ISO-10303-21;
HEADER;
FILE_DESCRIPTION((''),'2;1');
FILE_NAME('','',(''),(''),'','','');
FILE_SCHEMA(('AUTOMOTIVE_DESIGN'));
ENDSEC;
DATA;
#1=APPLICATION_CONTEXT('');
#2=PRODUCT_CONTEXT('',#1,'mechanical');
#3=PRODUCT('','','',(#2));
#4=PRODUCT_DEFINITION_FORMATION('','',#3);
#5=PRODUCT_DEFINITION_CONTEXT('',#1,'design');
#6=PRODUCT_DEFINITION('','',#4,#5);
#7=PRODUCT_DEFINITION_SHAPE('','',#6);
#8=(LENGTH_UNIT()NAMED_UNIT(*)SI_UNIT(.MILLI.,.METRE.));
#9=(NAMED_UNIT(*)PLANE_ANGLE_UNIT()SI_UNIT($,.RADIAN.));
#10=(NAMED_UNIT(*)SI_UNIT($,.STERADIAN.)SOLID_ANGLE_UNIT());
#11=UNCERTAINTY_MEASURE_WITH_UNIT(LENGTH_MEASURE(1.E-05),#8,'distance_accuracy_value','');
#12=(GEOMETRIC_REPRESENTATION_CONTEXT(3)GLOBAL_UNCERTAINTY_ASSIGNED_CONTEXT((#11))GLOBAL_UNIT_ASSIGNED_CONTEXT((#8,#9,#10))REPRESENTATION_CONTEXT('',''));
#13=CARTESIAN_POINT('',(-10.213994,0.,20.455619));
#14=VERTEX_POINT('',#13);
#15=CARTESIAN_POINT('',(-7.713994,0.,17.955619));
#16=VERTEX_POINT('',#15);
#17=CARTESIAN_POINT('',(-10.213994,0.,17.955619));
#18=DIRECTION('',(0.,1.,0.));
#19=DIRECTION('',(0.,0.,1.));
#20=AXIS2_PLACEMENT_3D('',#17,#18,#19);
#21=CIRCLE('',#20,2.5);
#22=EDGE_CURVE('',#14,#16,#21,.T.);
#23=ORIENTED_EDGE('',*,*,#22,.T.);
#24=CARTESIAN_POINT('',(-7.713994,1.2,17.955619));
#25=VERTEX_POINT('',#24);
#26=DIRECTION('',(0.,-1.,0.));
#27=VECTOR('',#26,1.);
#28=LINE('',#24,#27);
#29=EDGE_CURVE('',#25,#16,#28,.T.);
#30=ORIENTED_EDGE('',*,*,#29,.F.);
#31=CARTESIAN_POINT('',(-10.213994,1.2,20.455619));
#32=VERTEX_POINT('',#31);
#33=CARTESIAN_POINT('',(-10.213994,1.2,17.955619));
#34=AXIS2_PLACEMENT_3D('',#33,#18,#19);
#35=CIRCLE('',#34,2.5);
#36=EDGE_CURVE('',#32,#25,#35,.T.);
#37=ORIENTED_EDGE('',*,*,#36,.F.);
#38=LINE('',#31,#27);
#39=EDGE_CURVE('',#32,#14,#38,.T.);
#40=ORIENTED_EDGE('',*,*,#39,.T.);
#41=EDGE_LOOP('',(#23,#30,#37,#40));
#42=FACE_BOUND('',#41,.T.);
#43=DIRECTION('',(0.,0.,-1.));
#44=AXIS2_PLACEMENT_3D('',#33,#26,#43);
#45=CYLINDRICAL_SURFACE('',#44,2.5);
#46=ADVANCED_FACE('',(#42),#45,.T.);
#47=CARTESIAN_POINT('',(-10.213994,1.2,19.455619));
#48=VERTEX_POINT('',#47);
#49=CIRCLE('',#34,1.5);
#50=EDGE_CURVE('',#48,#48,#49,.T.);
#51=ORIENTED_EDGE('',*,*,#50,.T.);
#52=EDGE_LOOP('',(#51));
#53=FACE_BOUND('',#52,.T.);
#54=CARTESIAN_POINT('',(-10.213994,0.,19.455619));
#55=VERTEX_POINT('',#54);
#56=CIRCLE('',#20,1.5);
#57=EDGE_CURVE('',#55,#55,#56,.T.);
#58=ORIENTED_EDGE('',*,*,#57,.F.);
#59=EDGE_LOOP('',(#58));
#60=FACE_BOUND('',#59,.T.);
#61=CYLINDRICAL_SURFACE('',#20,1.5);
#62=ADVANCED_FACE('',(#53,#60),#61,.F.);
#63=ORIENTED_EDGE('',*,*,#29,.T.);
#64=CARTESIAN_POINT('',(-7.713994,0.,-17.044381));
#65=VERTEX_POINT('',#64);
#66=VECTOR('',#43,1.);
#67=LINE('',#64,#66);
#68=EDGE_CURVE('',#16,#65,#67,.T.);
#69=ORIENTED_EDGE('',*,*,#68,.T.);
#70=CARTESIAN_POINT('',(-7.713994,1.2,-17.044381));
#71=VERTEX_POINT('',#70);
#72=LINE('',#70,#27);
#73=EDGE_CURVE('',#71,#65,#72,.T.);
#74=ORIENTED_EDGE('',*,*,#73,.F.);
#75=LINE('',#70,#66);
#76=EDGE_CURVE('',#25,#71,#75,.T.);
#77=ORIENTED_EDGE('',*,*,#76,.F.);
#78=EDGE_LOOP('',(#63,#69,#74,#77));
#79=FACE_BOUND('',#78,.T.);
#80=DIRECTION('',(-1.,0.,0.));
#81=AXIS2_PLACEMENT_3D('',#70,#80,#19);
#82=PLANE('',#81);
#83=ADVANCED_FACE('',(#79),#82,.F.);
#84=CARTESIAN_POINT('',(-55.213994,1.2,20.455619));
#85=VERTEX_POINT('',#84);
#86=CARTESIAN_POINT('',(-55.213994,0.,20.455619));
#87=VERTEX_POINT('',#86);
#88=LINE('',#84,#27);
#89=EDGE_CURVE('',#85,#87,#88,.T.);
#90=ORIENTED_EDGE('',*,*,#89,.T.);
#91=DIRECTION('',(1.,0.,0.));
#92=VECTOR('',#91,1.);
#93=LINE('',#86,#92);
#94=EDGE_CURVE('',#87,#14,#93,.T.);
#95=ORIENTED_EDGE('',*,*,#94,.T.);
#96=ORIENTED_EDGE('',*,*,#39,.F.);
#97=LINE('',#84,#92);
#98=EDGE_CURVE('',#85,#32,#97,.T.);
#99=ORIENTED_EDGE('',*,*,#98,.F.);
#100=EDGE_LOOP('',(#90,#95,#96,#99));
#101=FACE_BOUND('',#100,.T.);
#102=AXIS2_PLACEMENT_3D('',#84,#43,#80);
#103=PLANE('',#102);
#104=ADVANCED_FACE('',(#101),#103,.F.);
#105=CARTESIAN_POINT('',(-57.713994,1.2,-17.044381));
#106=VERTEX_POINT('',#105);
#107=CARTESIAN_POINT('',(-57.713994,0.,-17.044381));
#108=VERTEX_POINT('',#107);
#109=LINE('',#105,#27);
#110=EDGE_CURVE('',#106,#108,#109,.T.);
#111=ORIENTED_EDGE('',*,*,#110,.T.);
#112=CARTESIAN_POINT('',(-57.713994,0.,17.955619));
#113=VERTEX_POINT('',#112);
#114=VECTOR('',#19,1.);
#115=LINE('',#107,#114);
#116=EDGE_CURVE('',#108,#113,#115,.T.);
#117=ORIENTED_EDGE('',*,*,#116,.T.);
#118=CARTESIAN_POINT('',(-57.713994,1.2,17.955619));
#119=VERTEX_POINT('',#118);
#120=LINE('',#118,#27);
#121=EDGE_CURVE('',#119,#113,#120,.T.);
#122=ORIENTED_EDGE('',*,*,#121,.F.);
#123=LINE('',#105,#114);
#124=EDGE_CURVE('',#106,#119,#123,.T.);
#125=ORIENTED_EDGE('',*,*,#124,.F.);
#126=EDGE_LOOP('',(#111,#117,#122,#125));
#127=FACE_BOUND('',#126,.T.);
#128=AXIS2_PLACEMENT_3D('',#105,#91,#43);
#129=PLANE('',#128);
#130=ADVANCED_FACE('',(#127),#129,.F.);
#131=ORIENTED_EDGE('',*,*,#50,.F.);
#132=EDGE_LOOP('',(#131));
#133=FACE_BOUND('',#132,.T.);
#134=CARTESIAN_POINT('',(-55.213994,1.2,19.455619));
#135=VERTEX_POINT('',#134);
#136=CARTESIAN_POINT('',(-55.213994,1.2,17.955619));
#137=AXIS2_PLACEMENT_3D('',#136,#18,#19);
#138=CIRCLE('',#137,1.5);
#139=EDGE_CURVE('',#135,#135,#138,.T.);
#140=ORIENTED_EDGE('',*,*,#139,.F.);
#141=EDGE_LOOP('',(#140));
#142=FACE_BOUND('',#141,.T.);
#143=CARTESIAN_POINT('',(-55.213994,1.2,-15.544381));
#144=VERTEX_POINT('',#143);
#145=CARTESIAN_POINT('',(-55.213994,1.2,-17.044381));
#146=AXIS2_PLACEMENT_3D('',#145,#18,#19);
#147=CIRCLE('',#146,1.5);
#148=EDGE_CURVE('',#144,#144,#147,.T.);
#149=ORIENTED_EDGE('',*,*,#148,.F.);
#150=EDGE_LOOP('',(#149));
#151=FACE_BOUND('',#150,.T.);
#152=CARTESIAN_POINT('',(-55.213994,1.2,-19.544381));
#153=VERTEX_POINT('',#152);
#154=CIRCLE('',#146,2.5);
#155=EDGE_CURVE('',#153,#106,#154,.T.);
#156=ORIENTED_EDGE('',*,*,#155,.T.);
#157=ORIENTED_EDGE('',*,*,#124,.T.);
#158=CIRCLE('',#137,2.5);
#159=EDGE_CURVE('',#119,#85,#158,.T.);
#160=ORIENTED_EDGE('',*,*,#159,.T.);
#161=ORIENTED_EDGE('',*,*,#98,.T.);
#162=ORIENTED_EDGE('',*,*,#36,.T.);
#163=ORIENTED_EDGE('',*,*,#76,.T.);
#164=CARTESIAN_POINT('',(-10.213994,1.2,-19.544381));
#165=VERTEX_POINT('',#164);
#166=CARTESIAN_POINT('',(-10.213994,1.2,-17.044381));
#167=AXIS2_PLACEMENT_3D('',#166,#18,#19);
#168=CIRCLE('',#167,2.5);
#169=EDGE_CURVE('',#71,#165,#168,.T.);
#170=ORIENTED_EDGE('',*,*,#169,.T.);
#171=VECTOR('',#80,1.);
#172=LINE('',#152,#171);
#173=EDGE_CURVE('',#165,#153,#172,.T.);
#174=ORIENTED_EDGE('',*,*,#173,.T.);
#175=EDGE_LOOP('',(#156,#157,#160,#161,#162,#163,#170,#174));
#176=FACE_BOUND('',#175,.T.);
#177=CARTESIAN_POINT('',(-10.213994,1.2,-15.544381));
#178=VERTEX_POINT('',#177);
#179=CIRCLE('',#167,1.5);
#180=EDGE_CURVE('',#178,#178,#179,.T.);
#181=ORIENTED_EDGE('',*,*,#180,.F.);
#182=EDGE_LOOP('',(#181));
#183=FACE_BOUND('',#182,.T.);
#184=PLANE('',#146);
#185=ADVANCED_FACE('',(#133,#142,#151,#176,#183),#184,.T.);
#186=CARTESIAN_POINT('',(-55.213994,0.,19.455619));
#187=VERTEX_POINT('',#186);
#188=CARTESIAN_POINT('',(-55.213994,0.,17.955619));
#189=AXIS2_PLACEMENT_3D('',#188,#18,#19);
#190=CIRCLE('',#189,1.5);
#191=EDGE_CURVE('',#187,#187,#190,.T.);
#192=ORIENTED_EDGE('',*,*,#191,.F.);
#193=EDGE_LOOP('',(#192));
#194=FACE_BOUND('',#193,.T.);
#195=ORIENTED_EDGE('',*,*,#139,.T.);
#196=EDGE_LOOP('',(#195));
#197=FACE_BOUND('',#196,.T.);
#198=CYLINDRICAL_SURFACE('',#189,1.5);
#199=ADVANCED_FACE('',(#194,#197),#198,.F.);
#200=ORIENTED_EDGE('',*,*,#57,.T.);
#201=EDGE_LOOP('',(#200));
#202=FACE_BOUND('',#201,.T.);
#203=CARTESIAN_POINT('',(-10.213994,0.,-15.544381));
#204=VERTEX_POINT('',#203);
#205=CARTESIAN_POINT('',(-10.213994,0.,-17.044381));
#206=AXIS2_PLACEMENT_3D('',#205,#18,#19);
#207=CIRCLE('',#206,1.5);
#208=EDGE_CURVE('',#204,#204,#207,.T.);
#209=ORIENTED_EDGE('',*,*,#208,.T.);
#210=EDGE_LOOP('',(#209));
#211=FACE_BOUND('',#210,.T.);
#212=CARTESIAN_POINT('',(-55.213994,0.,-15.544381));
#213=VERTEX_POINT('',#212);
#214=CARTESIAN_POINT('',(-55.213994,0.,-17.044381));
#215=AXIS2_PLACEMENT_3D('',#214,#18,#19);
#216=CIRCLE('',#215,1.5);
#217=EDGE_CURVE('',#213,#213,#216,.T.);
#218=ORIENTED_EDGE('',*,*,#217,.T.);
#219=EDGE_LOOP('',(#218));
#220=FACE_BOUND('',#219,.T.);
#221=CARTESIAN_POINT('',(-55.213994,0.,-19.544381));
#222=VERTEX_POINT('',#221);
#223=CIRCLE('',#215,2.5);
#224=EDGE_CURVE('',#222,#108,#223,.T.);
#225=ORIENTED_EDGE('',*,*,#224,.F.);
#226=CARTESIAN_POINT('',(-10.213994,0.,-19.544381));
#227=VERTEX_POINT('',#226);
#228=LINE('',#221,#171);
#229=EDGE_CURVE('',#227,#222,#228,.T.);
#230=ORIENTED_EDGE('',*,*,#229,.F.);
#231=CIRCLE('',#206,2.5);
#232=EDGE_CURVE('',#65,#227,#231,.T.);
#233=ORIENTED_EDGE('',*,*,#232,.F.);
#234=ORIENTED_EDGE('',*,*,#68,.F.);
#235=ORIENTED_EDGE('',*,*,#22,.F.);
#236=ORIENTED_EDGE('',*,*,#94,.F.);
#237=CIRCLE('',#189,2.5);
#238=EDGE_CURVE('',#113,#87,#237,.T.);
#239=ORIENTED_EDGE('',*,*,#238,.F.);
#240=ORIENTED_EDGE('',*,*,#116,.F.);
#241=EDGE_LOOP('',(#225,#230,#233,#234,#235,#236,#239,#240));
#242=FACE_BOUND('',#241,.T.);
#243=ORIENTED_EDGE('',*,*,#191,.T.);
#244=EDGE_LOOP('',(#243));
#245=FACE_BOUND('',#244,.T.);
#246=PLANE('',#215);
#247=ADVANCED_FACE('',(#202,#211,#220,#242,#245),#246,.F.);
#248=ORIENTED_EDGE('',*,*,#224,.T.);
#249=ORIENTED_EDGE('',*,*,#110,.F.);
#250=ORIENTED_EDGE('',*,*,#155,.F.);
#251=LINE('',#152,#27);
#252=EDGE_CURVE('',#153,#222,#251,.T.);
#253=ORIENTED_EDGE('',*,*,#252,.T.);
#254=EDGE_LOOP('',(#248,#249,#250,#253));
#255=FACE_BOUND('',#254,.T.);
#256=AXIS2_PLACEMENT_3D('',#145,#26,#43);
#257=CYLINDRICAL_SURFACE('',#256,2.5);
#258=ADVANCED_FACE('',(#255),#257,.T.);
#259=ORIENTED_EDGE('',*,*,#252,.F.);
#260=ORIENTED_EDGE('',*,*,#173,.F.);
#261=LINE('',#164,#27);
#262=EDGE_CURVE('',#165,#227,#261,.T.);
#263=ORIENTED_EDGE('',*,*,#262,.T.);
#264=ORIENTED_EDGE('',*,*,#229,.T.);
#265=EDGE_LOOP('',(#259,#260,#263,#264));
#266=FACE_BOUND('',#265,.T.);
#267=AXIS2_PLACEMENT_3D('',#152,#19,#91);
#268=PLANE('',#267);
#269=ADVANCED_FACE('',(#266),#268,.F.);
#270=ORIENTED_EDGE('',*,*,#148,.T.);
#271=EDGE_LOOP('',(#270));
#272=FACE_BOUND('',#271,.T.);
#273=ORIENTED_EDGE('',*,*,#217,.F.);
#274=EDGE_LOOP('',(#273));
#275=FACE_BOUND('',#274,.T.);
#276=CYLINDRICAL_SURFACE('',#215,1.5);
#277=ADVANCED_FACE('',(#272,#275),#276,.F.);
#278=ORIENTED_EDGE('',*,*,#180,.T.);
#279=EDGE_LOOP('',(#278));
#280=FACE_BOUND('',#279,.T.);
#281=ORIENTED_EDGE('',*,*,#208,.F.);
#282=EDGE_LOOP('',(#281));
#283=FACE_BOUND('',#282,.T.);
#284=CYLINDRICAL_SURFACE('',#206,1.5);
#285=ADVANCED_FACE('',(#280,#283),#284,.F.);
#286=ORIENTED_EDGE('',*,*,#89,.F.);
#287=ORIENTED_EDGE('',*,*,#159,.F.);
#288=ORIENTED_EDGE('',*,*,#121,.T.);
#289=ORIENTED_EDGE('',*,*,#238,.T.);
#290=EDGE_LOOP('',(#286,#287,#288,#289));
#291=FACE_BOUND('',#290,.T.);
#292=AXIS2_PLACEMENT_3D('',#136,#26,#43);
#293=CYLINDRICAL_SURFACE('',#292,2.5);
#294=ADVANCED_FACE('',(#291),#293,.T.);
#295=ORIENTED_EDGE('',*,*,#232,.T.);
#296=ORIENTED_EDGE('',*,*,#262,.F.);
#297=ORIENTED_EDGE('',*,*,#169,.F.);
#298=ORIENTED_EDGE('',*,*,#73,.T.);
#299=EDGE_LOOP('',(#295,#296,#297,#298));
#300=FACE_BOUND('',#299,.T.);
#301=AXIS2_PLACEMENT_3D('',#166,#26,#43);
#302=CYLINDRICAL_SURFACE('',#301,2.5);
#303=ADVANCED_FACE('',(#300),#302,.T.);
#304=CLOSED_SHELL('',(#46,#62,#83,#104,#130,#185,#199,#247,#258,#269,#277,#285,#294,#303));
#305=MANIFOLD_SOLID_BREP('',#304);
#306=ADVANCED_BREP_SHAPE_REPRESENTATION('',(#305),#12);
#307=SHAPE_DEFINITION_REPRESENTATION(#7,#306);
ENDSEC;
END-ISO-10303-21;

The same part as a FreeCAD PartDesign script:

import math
import FreeCAD as App
import Part
import Sketcher
Q = App.Units.Quantity

doc = App.newDocument("Part")
params = doc.addObject("Spreadsheet::Sheet", "Params")
for row, (alias, value) in enumerate([
    ("sketch1_radius", "2.5 mm"),
    ("sketch1_width", "45 mm"),
    ("sketch1_height", "35 mm"),
    ("pad1_length", "1.2 mm"),
    ("sketch2_diameter", "3 mm"),
], start=1):
    params.set(f"A{row}", alias)
    params.set(f"B{row}", "=" + value)
    params.setAlias(f"B{row}", alias)

body = doc.addObject("PartDesign::Body", "Body")

sketch1 = doc.addObject("Sketcher::SketchObject", "Sketch")
body.addObject(sketch1)
sketch1.AttachmentSupport = (doc.XZ_Plane, [""])
sketch1.MapMode = "FlatFace"
sketch1.addGeometry([
    Part.LineSegment(App.Vector(-10.2, -19.5, 0), App.Vector(-55.2, -19.5, 0)),
    Part.ArcOfCircle(Part.Circle(App.Vector(-55.2, -17, 0), App.Vector(0, 0, 1), 2.5), math.radians(180), math.radians(270)),
    Part.LineSegment(App.Vector(-57.7, -17, 0), App.Vector(-57.7, 18, 0)),
    Part.ArcOfCircle(Part.Circle(App.Vector(-55.2, 18, 0), App.Vector(0, 0, 1), 2.5), math.radians(90), math.radians(180)),
    Part.LineSegment(App.Vector(-55.2, 20.5, 0), App.Vector(-10.2, 20.5, 0)),
    Part.ArcOfCircle(Part.Circle(App.Vector(-10.2, 18, 0), App.Vector(0, 0, 1), 2.5), math.radians(0), math.radians(90)),
    Part.LineSegment(App.Vector(-7.7, 18, 0), App.Vector(-7.7, -17, 0)),
    Part.ArcOfCircle(Part.Circle(App.Vector(-10.2, -17, 0), App.Vector(0, 0, 1), 2.5), math.radians(-90), math.radians(0)),
], False)
sketch1.addConstraint([
    Sketcher.Constraint("Tangent", 0, 2, 1, 2),
    Sketcher.Constraint("Tangent", 1, 1, 2, 1),
    Sketcher.Constraint("Tangent", 2, 2, 3, 2),
    Sketcher.Constraint("Tangent", 3, 1, 4, 1),
    Sketcher.Constraint("Tangent", 4, 2, 5, 2),
    Sketcher.Constraint("Tangent", 5, 1, 6, 1),
    Sketcher.Constraint("Tangent", 6, 2, 7, 2),
    Sketcher.Constraint("Tangent", 7, 1, 0, 1),
    Sketcher.Constraint("Horizontal", 0),
    Sketcher.Constraint("Vertical", 2),
    Sketcher.Constraint("Horizontal", 4),
    Sketcher.Constraint("Vertical", 6),
    Sketcher.Constraint("Equal", 1, 3),
    Sketcher.Constraint("Equal", 3, 5),
    Sketcher.Constraint("Equal", 5, 7),
    Sketcher.Constraint("Radius", 1, Q("2.5 mm")),
    Sketcher.Constraint("DistanceX", 0, 2, 0, 1, Q("45 mm")),
    Sketcher.Constraint("DistanceY", 2, 1, 2, 2, Q("35 mm")),
    Sketcher.Constraint("DistanceY", 1, 3, -1, 1, Q("17.044381 mm")),
    Sketcher.Constraint("DistanceX", 1, 3, -1, 1, Q("55.213994 mm")),
])
sketch1.setExpression("Constraints[15]", "Params.sketch1_radius")
sketch1.setExpression("Constraints[16]", "Params.sketch1_width")
sketch1.setExpression("Constraints[17]", "Params.sketch1_height")
pad1 = doc.addObject("PartDesign::Pad", "Pad")
body.addObject(pad1)
pad1.Profile = sketch1
pad1.setExpression("Length", "Params.pad1_length")
pad1.Reversed = True

sketch2 = doc.addObject("Sketcher::SketchObject", "Sketch001")
body.addObject(sketch2)
sketch2.AttachmentSupport = (doc.XZ_Plane, [""])
sketch2.MapMode = "FlatFace"
sketch2.AttachmentOffset = App.Placement(App.Vector(0, 0, -1.2), App.Rotation())
sketch2.addGeometry([
    Part.Circle(App.Vector(-55.2, -17, 0), App.Vector(0, 0, 1), 1.5),
    Part.Circle(App.Vector(-10.2, -17, 0), App.Vector(0, 0, 1), 1.5),
    Part.Circle(App.Vector(-55.2, 18, 0), App.Vector(0, 0, 1), 1.5),
    Part.Circle(App.Vector(-10.2, 18, 0), App.Vector(0, 0, 1), 1.5),
], False)
sketch2.addConstraint([
    Sketcher.Constraint("Equal", 0, 1),
    Sketcher.Constraint("Equal", 1, 2),
    Sketcher.Constraint("Equal", 2, 3),
    Sketcher.Constraint("Horizontal", 0, 3, 1, 3),
    Sketcher.Constraint("Horizontal", 2, 3, 3, 3),
    Sketcher.Constraint("Vertical", 0, 3, 2, 3),
    Sketcher.Constraint("Vertical", 1, 3, 3, 3),
    Sketcher.Constraint("Diameter", 0, Q("3 mm")),
    Sketcher.Constraint("DistanceX", 0, 3, 1, 3, Q("45 mm")),
    Sketcher.Constraint("DistanceY", 0, 3, 2, 3, Q("35 mm")),
    Sketcher.Constraint("DistanceY", 0, 3, -1, 1, Q("17.044381 mm")),
    Sketcher.Constraint("DistanceX", 0, 3, -1, 1, Q("55.213994 mm")),
])
sketch2.setExpression("Constraints[7]", "Params.sketch2_diameter")
pocket1 = doc.addObject("PartDesign::Pocket", "Pocket")
body.addObject(pocket1)
pocket1.Profile = sketch2
pocket1.Type = "ThroughAll"
pocket1.Reversed = True

doc.recompute()
